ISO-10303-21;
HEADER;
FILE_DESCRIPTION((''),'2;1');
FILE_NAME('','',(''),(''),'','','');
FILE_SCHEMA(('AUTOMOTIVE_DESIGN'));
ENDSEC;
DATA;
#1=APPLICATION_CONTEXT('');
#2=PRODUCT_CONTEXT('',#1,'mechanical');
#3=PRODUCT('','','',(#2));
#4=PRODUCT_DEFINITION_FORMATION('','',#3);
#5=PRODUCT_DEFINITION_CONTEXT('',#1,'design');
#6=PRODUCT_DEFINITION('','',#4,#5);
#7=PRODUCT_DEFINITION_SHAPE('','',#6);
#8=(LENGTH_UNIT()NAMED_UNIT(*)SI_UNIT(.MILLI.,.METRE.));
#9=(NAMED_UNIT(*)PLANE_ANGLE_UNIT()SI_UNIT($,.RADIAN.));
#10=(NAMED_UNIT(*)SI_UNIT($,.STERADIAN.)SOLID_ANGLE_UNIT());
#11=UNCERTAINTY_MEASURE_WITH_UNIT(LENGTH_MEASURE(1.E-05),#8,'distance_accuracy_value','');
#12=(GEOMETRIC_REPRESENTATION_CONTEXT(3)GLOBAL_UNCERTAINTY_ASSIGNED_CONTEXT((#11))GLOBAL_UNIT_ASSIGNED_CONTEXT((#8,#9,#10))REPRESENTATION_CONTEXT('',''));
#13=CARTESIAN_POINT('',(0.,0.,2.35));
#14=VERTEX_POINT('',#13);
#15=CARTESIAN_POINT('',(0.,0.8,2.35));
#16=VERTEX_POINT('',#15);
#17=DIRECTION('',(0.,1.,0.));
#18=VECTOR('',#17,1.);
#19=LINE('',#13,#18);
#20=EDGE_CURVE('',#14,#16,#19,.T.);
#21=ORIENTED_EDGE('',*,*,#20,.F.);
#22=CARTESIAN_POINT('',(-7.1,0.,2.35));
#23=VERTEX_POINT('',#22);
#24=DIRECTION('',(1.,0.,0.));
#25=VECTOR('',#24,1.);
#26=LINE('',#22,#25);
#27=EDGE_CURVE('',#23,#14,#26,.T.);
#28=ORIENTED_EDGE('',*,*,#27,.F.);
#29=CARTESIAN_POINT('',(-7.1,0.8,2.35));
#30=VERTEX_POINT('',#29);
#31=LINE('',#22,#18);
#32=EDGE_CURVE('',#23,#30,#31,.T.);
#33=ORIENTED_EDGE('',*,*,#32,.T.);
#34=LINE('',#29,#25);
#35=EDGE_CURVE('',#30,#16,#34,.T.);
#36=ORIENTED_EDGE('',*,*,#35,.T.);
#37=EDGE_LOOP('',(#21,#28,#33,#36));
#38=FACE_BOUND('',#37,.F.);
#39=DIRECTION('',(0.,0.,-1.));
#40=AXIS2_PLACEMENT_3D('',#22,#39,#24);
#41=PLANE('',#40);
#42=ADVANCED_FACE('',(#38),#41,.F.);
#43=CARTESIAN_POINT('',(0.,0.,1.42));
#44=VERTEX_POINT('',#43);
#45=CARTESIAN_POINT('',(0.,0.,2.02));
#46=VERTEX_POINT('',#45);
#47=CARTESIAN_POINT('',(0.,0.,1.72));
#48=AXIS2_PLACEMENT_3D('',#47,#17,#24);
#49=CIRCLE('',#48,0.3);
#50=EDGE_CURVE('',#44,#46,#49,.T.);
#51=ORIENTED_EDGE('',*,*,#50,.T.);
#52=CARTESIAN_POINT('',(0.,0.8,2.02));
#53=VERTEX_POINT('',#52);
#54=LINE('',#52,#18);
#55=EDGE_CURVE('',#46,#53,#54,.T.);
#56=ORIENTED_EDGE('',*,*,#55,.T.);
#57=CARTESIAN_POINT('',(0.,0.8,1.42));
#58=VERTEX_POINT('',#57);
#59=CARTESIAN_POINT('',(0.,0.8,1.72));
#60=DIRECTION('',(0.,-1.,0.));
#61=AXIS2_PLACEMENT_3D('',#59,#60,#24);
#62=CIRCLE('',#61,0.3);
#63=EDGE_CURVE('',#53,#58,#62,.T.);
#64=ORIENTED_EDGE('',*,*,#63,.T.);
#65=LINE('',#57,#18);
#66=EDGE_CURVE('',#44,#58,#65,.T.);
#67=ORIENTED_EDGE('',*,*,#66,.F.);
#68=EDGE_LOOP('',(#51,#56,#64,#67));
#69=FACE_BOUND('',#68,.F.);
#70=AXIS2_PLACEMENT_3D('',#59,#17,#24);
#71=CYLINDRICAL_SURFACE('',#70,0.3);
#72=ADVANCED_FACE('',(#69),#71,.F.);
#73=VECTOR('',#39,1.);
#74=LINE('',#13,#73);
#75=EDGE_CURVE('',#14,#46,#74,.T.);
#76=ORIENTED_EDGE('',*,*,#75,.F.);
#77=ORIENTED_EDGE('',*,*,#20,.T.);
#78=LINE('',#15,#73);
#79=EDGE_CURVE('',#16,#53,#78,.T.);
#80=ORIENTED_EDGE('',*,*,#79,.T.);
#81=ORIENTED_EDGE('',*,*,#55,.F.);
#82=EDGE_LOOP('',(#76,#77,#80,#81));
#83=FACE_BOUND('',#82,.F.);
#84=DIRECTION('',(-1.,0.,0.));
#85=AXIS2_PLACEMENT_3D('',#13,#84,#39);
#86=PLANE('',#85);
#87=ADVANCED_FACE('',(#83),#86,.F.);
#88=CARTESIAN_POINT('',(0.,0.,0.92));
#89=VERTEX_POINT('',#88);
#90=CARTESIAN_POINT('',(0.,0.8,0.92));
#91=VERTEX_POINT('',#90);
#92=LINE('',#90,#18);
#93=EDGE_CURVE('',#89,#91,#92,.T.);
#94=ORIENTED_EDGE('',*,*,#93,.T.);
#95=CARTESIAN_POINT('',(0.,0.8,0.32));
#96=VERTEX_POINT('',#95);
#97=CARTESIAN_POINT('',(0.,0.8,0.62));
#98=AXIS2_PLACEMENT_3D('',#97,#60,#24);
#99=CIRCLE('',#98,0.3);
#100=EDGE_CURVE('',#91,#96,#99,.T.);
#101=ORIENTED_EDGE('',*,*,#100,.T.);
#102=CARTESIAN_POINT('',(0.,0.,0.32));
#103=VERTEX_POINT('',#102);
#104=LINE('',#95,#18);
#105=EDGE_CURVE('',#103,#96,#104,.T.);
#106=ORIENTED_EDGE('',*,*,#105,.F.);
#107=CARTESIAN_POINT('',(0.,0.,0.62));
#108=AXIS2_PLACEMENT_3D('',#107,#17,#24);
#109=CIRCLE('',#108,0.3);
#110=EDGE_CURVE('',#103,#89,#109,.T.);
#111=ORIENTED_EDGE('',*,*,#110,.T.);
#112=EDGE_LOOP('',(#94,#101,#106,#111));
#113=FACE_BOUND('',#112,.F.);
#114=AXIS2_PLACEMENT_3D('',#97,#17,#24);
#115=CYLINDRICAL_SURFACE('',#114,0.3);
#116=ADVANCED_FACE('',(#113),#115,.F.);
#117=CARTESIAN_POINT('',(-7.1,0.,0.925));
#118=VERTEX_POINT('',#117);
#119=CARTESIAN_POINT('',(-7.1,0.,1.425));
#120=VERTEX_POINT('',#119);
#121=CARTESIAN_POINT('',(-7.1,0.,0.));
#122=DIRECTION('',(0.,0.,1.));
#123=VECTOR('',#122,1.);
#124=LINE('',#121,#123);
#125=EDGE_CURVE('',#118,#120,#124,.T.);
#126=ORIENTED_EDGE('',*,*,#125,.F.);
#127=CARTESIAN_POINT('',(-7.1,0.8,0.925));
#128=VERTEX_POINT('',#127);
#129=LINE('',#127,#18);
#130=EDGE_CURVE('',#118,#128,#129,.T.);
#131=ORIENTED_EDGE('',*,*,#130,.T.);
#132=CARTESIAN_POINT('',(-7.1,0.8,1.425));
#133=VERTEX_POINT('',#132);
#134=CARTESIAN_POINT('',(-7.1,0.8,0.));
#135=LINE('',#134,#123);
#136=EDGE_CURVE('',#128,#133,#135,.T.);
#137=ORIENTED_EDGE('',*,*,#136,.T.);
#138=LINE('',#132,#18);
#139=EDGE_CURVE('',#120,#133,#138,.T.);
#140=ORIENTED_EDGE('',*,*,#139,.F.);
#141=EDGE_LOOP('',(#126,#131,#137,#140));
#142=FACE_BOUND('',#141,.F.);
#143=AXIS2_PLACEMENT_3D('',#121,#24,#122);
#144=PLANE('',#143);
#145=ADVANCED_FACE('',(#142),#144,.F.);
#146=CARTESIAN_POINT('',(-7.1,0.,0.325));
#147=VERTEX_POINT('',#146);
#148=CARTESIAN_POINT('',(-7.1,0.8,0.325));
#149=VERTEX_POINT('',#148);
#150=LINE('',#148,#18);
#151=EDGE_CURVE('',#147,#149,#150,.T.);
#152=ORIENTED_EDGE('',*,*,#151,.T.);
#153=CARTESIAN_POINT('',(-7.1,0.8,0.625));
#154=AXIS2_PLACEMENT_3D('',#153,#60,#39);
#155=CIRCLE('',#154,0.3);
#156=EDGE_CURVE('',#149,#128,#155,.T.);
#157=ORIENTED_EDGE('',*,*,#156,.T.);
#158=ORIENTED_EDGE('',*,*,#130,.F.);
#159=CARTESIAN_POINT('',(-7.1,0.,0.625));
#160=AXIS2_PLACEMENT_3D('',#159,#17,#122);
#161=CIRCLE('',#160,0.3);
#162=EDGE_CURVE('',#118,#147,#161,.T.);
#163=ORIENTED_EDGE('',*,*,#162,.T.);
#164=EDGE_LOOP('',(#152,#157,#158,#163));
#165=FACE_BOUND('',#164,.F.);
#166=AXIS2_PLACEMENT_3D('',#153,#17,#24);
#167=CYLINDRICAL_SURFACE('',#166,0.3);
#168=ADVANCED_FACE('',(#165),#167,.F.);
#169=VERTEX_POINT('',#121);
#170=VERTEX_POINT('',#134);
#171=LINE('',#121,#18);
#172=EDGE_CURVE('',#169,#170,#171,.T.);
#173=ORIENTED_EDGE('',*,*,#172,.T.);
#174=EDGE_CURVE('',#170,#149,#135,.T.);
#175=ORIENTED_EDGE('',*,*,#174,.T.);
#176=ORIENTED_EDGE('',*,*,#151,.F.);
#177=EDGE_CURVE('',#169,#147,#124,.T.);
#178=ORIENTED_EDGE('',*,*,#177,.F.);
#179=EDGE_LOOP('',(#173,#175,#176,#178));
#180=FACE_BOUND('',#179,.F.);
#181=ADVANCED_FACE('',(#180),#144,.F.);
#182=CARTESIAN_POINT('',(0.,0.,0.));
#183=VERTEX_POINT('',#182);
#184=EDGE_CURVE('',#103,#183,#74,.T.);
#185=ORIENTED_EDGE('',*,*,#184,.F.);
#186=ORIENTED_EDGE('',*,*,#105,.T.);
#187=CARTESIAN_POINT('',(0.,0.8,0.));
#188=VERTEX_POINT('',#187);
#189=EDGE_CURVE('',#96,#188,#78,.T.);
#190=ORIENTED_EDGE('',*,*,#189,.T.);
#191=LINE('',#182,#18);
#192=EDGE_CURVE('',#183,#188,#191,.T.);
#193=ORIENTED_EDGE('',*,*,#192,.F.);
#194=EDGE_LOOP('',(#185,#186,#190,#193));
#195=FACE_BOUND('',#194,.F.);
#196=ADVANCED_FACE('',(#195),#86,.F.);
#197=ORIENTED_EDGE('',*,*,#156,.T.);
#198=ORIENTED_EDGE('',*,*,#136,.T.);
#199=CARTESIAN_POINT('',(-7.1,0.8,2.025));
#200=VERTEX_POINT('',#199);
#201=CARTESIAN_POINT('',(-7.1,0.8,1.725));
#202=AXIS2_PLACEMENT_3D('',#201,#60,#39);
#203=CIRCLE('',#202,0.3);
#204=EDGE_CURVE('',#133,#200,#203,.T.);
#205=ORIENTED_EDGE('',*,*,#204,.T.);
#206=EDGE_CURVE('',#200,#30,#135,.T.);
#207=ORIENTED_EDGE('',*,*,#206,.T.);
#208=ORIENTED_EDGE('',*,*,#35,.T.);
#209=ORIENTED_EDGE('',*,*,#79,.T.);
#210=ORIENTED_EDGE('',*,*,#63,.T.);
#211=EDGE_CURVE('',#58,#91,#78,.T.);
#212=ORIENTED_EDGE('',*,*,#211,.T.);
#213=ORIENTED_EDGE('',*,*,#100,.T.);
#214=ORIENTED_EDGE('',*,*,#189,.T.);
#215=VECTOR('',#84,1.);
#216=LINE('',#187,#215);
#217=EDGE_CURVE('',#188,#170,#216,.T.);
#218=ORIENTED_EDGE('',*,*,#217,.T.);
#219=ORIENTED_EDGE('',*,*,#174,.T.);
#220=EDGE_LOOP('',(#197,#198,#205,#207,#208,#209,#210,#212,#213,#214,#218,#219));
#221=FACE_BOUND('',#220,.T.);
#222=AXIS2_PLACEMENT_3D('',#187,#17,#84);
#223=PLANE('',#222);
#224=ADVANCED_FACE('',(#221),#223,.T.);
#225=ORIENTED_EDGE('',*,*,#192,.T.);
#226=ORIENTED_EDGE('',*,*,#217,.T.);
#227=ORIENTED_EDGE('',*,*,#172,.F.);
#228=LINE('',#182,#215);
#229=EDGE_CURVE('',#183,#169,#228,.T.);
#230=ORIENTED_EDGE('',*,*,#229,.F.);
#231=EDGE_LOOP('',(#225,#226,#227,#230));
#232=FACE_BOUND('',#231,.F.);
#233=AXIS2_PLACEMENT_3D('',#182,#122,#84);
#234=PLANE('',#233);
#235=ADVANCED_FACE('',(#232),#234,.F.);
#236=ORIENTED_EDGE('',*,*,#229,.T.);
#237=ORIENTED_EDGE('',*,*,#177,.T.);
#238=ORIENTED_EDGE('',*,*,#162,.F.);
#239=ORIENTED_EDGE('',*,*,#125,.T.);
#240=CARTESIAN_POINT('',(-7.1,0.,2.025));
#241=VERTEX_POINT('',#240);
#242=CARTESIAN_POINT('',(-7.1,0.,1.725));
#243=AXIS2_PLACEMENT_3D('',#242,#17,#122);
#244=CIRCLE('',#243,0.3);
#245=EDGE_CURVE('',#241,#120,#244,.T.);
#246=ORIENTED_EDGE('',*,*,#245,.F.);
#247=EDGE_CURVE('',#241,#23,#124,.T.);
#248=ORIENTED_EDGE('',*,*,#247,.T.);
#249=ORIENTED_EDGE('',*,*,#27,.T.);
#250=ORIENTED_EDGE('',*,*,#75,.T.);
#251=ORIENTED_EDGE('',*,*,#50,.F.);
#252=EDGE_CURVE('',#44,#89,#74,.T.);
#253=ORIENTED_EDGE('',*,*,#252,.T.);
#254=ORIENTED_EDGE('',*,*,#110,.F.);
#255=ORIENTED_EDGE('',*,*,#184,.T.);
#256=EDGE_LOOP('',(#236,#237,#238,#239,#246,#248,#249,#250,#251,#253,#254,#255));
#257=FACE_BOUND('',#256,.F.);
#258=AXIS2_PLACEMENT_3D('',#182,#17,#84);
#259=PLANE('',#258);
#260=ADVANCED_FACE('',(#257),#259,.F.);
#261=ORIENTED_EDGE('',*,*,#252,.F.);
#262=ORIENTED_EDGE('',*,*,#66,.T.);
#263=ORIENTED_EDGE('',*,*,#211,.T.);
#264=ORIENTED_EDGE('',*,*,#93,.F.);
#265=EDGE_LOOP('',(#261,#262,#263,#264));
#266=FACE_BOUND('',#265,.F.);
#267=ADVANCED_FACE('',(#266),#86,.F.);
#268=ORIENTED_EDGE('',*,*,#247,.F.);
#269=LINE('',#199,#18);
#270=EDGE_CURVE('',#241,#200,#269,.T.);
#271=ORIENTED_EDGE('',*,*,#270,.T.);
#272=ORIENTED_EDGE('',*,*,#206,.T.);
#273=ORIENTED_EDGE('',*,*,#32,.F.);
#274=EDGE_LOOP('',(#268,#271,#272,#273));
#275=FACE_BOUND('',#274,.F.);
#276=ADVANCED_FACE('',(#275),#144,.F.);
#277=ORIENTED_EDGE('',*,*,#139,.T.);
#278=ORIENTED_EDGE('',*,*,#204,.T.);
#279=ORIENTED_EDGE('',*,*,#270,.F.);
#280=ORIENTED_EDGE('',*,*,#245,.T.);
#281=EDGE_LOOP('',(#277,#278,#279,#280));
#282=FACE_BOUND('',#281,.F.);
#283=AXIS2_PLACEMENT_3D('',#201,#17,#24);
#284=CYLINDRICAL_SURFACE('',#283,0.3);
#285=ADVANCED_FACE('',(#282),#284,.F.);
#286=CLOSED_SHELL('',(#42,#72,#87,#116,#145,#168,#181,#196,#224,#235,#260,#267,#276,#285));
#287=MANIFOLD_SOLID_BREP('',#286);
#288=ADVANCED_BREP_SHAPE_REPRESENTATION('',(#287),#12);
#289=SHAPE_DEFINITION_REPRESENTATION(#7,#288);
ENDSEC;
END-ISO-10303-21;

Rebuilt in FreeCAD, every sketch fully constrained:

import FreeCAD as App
import Part
import Sketcher
from FreeCAD import Vector


def add_polygon(sketch, points):
    """Adds a closed chain of lines whose ends are joined by coincident constraints."""
    first, n = sketch.GeometryCount, len(points)
    for a, b in zip(points, points[1:] + points[:1]):
        sketch.addGeometry(Part.LineSegment(App.Vector(*a, 0), App.Vector(*b, 0)), False)
    for i in range(n):
        sketch.addConstraint(Sketcher.Constraint("Coincident", first + i, 2, first + (i + 1) % n, 1))

doc = App.newDocument("Part")
body = doc.addObject("PartDesign::Body", "Body")

# Sketch on XZ plane
sketch1 = body.newObject("Sketcher::SketchObject", "Sketch")
sketch1.AttachmentSupport = (doc.getObject("XZ_Plane"), [""])
sketch1.MapMode = "FlatFace"
add_polygon(sketch1, [(0, 2.4), (0, 0), (-7.1, 0), (-7.1, 2.4)])  # lines 0-3
sketch1.addConstraint([
    Sketcher.Constraint("Vertical", 0),
    Sketcher.Constraint("Horizontal", 1),
    Sketcher.Constraint("Vertical", 2),
    Sketcher.Constraint("Horizontal", 3),
    Sketcher.Constraint("Coincident", 0, 2, -1, 1),
    Sketcher.Constraint("DistanceX", 1, 2, 1, 1, 7.1),
    Sketcher.Constraint("DistanceY", 0, 2, 0, 1, 2.35),
])
pad1 = body.newObject("PartDesign::Pad", "Pad")
pad1.Profile = sketch1
pad1.Length = 0.8
pad1.Reversed = True

# Sketch on XZ plane
sketch2 = body.newObject("Sketcher::SketchObject", "Sketch001")
sketch2.AttachmentSupport = (doc.getObject("XZ_Plane"), [""])
sketch2.MapMode = "FlatFace"
sketch2.AttachmentOffset = App.Placement(Vector(0, 0, -0.8), App.Rotation())
sketch2.addGeometry([
    Part.Circle(Vector(-7.1, 1.73, 0), Vector(0, 0, 1), 0.3),
    Part.Circle(Vector(-7.1, 0.62, 0), Vector(0, 0, 1), 0.3),
    Part.Circle(Vector(0, 1.72, 0), Vector(0, 0, 1), 0.3),
    Part.Circle(Vector(0, 0.62, 0), Vector(0, 0, 1), 0.3),
], False)
sketch2.addConstraint([
    Sketcher.Constraint("Equal", 0, 1),
    Sketcher.Constraint("Equal", 1, 2),
    Sketcher.Constraint("Equal", 2, 3),
    Sketcher.Constraint("PointOnObject", 2, 3, -2),
    Sketcher.Constraint("PointOnObject", 3, 3, -2),
    Sketcher.Constraint("Vertical", 0, 3, 1, 3),
    Sketcher.Constraint("Diameter", 0, 0.6),
    Sketcher.Constraint("DistanceY", 1, 3, 0, 3, 1.1),
    Sketcher.Constraint("DistanceY", 3, 3, 2, 3, 1.1),
    Sketcher.Constraint("DistanceY", -1, 1, 3, 3, 0.62),
    Sketcher.Constraint("DistanceY", -1, 1, 1, 3, 0.625),
    Sketcher.Constraint("DistanceX", 0, 3, -1, 1, 7.1),
])
pocket1 = body.newObject("PartDesign::Pocket", "Pocket")
pocket1.Profile = sketch2
pocket1.Type = "ThroughAll"
pocket1.Reversed = True

doc.recompute()
